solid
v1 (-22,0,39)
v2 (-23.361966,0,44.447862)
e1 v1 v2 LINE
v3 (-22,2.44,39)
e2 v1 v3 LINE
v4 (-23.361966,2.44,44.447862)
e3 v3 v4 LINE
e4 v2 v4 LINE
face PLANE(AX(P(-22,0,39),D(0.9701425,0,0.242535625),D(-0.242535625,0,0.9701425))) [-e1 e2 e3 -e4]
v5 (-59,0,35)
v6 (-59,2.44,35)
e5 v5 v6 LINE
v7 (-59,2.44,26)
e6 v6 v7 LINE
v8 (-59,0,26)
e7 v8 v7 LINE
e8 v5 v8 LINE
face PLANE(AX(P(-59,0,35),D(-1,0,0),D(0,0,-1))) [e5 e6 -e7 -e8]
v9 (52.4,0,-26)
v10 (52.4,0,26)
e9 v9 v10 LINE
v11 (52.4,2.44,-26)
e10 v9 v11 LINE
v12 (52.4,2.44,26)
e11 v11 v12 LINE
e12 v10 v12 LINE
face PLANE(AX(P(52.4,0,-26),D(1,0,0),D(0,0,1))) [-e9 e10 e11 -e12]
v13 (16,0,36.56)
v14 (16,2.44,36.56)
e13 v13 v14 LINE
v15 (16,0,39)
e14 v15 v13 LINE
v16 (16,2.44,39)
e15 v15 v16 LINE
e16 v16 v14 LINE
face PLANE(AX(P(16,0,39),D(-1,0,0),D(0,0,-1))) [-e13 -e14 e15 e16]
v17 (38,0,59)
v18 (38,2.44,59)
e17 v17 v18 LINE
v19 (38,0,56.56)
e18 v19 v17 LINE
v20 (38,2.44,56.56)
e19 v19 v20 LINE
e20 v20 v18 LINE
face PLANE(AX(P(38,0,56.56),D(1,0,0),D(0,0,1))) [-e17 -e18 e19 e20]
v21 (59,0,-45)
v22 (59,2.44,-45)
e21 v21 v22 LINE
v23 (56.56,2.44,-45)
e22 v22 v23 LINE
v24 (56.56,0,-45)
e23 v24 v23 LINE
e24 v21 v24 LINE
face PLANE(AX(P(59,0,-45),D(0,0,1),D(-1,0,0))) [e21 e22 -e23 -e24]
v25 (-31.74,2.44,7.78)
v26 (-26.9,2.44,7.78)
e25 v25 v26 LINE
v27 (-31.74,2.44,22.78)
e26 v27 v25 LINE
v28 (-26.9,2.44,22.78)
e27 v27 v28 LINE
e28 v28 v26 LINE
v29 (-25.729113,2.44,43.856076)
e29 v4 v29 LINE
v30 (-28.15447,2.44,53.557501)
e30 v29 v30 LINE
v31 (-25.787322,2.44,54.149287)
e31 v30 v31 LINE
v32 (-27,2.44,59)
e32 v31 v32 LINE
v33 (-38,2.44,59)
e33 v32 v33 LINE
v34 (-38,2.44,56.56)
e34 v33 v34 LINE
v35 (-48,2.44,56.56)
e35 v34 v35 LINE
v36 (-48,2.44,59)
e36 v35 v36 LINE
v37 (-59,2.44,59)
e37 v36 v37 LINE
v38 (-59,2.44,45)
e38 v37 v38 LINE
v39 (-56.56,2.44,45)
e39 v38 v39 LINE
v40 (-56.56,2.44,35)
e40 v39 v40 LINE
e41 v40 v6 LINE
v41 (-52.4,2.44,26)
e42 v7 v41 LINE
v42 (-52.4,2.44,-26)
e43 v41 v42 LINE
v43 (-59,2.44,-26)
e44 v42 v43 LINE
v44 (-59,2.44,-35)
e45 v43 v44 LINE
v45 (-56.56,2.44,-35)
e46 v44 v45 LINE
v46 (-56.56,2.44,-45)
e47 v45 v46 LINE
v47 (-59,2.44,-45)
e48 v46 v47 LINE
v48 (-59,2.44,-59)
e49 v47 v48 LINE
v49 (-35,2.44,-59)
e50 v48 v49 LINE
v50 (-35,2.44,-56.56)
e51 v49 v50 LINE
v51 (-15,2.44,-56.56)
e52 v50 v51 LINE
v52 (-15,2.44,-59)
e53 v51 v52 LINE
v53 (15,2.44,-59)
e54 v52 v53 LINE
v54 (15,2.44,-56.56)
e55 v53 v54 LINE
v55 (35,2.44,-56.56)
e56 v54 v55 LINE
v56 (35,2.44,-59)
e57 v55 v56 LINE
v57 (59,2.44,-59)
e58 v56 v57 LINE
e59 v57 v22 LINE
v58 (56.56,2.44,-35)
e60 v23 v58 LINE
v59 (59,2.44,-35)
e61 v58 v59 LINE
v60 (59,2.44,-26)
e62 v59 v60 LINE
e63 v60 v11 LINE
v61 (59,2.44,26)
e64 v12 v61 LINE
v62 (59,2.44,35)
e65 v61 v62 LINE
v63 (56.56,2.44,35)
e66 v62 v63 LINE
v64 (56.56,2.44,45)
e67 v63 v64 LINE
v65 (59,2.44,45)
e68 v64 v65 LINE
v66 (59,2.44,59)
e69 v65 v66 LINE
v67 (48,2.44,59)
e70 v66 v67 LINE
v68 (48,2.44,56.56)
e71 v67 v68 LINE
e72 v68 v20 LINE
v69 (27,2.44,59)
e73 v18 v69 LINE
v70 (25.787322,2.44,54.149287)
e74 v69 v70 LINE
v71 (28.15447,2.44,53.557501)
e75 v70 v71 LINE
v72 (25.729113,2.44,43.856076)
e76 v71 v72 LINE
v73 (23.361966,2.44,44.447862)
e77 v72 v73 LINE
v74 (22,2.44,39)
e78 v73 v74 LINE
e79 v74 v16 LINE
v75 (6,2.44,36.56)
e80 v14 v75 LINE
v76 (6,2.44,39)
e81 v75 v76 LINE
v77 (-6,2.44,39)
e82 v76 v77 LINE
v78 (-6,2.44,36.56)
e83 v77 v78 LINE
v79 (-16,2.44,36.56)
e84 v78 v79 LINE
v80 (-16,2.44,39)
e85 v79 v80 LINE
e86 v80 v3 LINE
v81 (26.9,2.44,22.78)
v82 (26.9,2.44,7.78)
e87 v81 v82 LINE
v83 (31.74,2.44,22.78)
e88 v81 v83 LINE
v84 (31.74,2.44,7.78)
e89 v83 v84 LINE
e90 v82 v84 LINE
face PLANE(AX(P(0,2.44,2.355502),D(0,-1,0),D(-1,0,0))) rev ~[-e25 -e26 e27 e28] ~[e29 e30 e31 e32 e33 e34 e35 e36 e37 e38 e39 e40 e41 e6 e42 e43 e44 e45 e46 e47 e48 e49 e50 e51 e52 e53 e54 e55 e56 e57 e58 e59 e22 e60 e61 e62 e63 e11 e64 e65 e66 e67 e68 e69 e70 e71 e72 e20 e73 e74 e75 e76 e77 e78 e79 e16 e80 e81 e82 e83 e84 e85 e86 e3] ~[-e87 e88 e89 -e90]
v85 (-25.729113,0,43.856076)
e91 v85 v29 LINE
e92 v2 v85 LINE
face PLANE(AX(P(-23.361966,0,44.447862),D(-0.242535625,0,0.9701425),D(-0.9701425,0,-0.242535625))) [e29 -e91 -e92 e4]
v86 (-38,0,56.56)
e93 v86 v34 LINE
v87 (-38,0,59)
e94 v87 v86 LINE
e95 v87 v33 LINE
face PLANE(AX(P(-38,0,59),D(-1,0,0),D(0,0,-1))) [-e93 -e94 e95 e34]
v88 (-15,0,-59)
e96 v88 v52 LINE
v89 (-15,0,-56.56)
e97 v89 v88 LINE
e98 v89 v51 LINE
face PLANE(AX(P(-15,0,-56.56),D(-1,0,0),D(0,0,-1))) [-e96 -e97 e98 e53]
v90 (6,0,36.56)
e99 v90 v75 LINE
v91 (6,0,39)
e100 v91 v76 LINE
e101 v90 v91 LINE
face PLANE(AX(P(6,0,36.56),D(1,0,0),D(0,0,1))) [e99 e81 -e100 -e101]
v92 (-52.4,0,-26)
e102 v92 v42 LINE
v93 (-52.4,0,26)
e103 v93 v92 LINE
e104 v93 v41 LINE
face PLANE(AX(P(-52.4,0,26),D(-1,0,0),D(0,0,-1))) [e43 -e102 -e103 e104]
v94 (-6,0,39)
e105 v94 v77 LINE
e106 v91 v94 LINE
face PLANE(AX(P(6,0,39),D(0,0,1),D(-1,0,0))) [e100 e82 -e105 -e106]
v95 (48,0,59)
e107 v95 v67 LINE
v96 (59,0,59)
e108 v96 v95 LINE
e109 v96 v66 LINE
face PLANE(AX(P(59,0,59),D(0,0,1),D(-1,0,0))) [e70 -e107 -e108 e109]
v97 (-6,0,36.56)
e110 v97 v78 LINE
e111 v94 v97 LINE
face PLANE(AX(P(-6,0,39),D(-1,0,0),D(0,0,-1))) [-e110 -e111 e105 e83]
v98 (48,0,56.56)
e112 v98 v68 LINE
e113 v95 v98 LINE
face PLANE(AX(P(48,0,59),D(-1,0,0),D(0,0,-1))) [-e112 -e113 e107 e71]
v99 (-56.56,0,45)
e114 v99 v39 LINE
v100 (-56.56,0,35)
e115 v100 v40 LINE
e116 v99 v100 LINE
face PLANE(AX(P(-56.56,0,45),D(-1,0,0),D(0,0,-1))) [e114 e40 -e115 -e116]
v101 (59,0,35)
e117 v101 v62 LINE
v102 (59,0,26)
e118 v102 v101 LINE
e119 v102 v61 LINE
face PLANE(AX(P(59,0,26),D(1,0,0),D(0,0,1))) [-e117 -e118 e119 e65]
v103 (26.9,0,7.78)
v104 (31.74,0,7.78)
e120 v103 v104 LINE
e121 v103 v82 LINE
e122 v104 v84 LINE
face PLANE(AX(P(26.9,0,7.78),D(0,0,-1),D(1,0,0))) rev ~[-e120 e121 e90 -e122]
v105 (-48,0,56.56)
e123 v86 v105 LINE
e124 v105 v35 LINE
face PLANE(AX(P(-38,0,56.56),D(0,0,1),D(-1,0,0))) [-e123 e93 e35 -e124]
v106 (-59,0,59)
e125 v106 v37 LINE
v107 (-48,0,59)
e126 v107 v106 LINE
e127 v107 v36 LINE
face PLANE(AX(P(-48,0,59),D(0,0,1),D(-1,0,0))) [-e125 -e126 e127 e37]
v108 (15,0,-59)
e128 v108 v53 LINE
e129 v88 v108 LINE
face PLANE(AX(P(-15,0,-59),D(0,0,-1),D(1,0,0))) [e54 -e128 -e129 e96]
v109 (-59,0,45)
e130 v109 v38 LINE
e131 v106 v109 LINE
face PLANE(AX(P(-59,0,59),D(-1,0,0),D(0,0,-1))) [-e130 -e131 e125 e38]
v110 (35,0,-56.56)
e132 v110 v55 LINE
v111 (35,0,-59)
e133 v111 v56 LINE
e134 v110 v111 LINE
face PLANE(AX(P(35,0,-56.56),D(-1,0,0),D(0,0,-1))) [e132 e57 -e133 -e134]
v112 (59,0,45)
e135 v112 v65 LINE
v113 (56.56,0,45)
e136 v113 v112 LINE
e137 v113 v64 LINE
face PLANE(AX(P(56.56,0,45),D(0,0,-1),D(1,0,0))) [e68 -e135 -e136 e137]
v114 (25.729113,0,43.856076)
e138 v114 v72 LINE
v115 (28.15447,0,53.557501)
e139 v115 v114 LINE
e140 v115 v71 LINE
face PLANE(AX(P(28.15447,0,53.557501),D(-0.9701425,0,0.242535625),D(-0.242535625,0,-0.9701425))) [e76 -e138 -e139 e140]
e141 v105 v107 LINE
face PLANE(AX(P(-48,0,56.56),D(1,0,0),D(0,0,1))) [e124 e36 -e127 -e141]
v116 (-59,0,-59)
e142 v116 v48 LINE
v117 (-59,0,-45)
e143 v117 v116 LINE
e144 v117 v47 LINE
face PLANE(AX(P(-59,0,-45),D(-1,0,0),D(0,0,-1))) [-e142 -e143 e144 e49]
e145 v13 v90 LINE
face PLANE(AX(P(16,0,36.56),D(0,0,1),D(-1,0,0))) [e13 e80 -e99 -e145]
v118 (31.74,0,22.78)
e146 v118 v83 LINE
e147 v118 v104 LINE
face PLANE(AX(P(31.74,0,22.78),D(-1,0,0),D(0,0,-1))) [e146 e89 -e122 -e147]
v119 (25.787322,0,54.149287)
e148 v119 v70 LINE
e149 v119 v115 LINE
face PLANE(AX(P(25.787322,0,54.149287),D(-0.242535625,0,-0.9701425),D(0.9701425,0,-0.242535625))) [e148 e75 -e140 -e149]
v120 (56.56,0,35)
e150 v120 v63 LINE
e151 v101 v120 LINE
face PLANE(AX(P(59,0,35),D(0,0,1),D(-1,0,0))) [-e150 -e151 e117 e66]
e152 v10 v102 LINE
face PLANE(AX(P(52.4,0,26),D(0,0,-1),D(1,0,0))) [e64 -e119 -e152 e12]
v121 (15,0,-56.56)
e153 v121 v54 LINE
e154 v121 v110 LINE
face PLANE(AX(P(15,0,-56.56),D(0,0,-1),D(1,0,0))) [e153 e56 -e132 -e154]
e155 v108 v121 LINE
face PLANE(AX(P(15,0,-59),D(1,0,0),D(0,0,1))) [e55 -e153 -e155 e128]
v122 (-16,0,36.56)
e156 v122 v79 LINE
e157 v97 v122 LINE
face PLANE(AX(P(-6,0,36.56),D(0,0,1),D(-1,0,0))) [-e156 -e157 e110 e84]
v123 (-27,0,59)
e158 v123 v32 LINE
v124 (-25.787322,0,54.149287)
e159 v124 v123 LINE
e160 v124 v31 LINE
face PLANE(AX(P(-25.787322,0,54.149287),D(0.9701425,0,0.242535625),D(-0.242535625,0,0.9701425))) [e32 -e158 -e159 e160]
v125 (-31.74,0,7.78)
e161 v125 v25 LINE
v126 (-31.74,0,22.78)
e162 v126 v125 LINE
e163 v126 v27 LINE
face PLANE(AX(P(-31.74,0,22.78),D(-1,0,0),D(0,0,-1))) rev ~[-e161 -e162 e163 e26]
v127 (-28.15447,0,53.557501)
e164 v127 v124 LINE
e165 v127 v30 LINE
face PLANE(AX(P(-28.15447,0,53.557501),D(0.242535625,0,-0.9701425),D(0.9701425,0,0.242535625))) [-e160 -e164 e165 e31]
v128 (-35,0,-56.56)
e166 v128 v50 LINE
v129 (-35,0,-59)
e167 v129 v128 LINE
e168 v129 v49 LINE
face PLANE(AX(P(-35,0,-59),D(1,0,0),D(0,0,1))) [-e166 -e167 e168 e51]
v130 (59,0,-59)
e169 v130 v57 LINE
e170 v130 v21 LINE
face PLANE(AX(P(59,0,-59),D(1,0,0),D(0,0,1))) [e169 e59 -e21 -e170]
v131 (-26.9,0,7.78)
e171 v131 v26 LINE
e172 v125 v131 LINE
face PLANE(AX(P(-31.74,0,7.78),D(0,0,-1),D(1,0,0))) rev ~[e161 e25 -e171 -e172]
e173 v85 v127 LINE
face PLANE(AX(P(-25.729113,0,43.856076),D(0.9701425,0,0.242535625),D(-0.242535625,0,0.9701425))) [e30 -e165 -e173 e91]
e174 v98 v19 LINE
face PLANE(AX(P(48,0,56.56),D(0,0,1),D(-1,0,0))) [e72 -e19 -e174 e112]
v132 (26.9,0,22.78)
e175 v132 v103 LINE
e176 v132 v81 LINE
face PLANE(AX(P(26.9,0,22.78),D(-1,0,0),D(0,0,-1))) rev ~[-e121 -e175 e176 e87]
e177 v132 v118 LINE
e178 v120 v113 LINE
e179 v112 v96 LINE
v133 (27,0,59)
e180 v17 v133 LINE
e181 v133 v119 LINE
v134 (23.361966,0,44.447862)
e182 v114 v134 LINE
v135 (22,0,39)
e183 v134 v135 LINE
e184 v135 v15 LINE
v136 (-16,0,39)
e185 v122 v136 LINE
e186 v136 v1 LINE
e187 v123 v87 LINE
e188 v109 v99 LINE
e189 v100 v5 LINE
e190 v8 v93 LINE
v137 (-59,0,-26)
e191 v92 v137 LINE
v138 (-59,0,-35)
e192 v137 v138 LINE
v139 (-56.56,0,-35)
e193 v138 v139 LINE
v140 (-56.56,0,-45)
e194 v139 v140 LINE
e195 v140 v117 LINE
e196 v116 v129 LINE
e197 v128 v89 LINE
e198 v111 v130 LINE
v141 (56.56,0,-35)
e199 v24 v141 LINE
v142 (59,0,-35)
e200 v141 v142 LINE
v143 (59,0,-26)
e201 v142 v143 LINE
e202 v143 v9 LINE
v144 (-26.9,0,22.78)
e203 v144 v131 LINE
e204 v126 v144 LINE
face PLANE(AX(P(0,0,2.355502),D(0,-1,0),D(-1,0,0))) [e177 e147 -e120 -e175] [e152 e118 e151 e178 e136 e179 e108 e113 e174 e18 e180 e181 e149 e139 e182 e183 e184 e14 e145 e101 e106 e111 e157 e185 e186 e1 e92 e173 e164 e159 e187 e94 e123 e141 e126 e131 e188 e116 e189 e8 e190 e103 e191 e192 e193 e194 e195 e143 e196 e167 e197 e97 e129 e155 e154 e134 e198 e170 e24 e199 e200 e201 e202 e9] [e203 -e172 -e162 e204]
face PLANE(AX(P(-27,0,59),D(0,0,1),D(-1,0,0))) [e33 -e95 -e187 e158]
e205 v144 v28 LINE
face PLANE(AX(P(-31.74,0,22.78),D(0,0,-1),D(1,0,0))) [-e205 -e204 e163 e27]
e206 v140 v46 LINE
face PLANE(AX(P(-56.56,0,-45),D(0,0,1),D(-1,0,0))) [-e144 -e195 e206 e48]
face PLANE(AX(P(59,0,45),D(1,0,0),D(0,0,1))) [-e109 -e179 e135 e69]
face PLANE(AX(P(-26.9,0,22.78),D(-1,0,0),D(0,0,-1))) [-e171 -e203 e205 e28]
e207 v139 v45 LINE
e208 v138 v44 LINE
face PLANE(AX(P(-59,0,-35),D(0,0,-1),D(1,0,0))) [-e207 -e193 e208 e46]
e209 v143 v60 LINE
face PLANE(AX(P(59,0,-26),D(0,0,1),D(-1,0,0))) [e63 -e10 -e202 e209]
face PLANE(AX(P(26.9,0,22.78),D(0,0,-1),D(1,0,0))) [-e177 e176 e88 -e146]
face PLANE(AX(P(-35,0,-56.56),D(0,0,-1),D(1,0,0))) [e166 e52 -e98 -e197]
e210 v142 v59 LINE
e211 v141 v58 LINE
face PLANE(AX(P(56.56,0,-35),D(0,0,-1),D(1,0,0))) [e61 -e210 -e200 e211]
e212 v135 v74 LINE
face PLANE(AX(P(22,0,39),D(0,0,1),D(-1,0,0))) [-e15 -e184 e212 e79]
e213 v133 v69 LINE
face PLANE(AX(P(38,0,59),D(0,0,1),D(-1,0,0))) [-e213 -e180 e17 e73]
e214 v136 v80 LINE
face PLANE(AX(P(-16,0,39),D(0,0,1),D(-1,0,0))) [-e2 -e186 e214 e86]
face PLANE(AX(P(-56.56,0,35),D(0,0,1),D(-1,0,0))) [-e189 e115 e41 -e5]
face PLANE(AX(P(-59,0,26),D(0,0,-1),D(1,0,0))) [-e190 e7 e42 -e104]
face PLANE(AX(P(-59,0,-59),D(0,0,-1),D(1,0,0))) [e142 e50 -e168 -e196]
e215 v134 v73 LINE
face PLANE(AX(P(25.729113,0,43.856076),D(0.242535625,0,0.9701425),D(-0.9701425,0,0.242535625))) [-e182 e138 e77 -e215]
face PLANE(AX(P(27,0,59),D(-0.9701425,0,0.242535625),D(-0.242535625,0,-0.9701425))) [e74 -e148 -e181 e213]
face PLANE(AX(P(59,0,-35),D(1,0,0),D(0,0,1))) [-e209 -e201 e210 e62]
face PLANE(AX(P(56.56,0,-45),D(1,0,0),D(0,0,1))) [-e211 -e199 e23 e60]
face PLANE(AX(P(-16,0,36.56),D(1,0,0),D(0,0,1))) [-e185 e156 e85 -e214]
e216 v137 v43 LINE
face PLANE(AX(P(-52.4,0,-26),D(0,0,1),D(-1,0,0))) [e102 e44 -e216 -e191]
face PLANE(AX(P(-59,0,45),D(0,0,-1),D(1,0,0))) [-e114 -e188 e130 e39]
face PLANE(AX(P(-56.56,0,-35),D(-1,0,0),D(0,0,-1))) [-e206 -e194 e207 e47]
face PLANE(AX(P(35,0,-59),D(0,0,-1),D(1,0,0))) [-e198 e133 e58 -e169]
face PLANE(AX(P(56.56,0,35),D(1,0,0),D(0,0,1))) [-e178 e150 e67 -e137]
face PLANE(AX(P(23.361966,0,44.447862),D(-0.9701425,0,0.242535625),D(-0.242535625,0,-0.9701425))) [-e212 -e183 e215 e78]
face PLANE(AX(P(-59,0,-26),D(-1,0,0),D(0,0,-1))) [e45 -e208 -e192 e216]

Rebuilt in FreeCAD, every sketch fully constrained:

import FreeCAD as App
import Part
import Sketcher
from FreeCAD import Vector
Q = App.Units.Quantity


def add_polygon(sketch, points):
    """Adds a closed chain of lines whose ends are joined by coincident constraints."""
    first, n = sketch.GeometryCount, len(points)
    for a, b in zip(points, points[1:] + points[:1]):
        sketch.addGeometry(Part.LineSegment(App.Vector(*a, 0), App.Vector(*b, 0)), False)
    for i in range(n):
        sketch.addConstraint(Sketcher.Constraint("Coincident", first + i, 2, first + (i + 1) % n, 1))

doc = App.newDocument("Part")
body = doc.addObject("PartDesign::Body", "Body")

# Sketch on XZ plane
sketch1 = body.newObject("Sketcher::SketchObject", "Sketch")
sketch1.AttachmentSupport = (doc.getObject("XZ_Plane"), [""])
sketch1.MapMode = "FlatFace"
add_polygon(sketch1, [(-59, -59), (-59, -45), (-56.6, -45), (-56.6, -35), (-59, -35), (-59, -26), (-52.4, -26), (-52.4, 26), (-59, 26), (-59, 35), (-56.6, 35), (-56.6, 45), (-59, 45), (-59, 59), (-48, 59), (-48, 56.6), (-38, 56.6), (-38, 59), (-27, 59), (-25.8, 54.1), (-28.2, 53.6), (-25.7, 43.9), (-23.4, 44.4), (-22, 39), (-16, 39), (-16, 36.6), (-6, 36.6), (-6, 39), (6, 39), (6, 36.6), (16, 36.6), (16, 39), (22, 39), (23.4, 44.4), (25.7, 43.9), (28.2, 53.6), (25.8, 54.1), (27, 59), (38, 59), (38, 56.6), (48, 56.6), (48, 59), (59, 59), (59, 45), (56.6, 45), (56.6, 35), (59, 35), (59, 26), (52.4, 26), (52.4, -26), (59, -26), (59, -35), (56.6, -35), (56.6, -45), (59, -45), (59, -59), (35, -59), (35, -56.6), (15, -56.6), (15, -59), (-15, -59), (-15, -56.6), (-35, -56.6), (-35, -59)])  # lines 0-63
add_polygon(sketch1, [(26.9, 22.8), (26.9, 7.8), (31.7, 7.8), (31.7, 22.8)])  # lines 64-67
add_polygon(sketch1, [(-31.7, 22.8), (-31.7, 7.8), (-26.9, 7.8), (-26.9, 22.8)])  # lines 68-71
sketch1.addConstraint(Sketcher.Constraint("Vertical", 0))
sketch1.addConstraint(Sketcher.Constraint("Horizontal", 1))
sketch1.addConstraint(Sketcher.Constraint("Vertical", 2))
sketch1.addConstraint(Sketcher.Constraint("Horizontal", 3))
sketch1.addConstraint(Sketcher.Constraint("Vertical", 4))
sketch1.addConstraint(Sketcher.Constraint("Horizontal", 5))
sketch1.addConstraint(Sketcher.Constraint("Vertical", 6))
sketch1.addConstraint(Sketcher.Constraint("Horizontal", 7))
sketch1.addConstraint(Sketcher.Constraint("Vertical", 8))
sketch1.addConstraint(Sketcher.Constraint("Horizontal", 9))
sketch1.addConstraint(Sketcher.Constraint("Vertical", 10))
sketch1.addConstraint(Sketcher.Constraint("Horizontal", 11))
sketch1.addConstraint(Sketcher.Constraint("Vertical", 12))
sketch1.addConstraint(Sketcher.Constraint("Horizontal", 13))
sketch1.addConstraint(Sketcher.Constraint("Vertical", 14))
sketch1.addConstraint(Sketcher.Constraint("Horizontal", 15))
sketch1.addConstraint(Sketcher.Constraint("Vertical", 16))
sketch1.addConstraint(Sketcher.Constraint("Horizontal", 17))
sketch1.addConstraint(Sketcher.Constraint("Horizontal", 23))
sketch1.addConstraint(Sketcher.Constraint("Vertical", 24))
sketch1.addConstraint(Sketcher.Constraint("Horizontal", 25))
sketch1.addConstraint(Sketcher.Constraint("Vertical", 26))
sketch1.addConstraint(Sketcher.Constraint("Horizontal", 27))
sketch1.addConstraint(Sketcher.Constraint("Vertical", 28))
sketch1.addConstraint(Sketcher.Constraint("Horizontal", 29))
sketch1.addConstraint(Sketcher.Constraint("Vertical", 30))
sketch1.addConstraint(Sketcher.Constraint("Horizontal", 31))
sketch1.addConstraint(Sketcher.Constraint("Horizontal", 37))
sketch1.addConstraint(Sketcher.Constraint("Vertical", 38))
sketch1.addConstraint(Sketcher.Constraint("Horizontal", 39))
sketch1.addConstraint(Sketcher.Constraint("Vertical", 40))
sketch1.addConstraint(Sketcher.Constraint("Horizontal", 41))
sketch1.addConstraint(Sketcher.Constraint("Vertical", 42))
sketch1.addConstraint(Sketcher.Constraint("Horizontal", 43))
sketch1.addConstraint(Sketcher.Constraint("Vertical", 44))
sketch1.addConstraint(Sketcher.Constraint("Horizontal", 45))
sketch1.addConstraint(Sketcher.Constraint("Vertical", 46))
sketch1.addConstraint(Sketcher.Constraint("Horizontal", 47))
sketch1.addConstraint(Sketcher.Constraint("Vertical", 48))
sketch1.addConstraint(Sketcher.Constraint("Horizontal", 49))
sketch1.addConstraint(Sketcher.Constraint("Vertical", 50))
sketch1.addConstraint(Sketcher.Constraint("Horizontal", 51))
sketch1.addConstraint(Sketcher.Constraint("Vertical", 52))
sketch1.addConstraint(Sketcher.Constraint("Horizontal", 53))
sketch1.addConstraint(Sketcher.Constraint("Vertical", 54))
sketch1.addConstraint(Sketcher.Constraint("Horizontal", 55))
sketch1.addConstraint(Sketcher.Constraint("Vertical", 56))
sketch1.addConstraint(Sketcher.Constraint("Horizontal", 57))
sketch1.addConstraint(Sketcher.Constraint("Vertical", 58))
sketch1.addConstraint(Sketcher.Constraint("Horizontal", 59))
sketch1.addConstraint(Sketcher.Constraint("Vertical", 60))
sketch1.addConstraint(Sketcher.Constraint("Horizontal", 61))
sketch1.addConstraint(Sketcher.Constraint("Vertical", 62))
sketch1.addConstraint(Sketcher.Constraint("Horizontal", 63))
sketch1.addConstraint(Sketcher.Constraint("Vertical", 64))
sketch1.addConstraint(Sketcher.Constraint("Horizontal", 65))
sketch1.addConstraint(Sketcher.Constraint("Vertical", 66))
sketch1.addConstraint(Sketcher.Constraint("Horizontal", 67))
sketch1.addConstraint(Sketcher.Constraint("Vertical", 68))
sketch1.addConstraint(Sketcher.Constraint("Horizontal", 69))
sketch1.addConstraint(Sketcher.Constraint("Vertical", 70))
sketch1.addConstraint(Sketcher.Constraint("Horizontal", 71))
sketch1.addConstraint(Sketcher.Constraint("Symmetric", 0, 2, 42, 2, -1, 1))
sketch1.addConstraint(Sketcher.Constraint("Symmetric", 2, 2, 44, 2, -1, 1))
sketch1.addConstraint(Sketcher.Constraint("Symmetric", 4, 2, 46, 2, -1, 1))
sketch1.addConstraint(Sketcher.Constraint("Symmetric", 6, 2, 48, 2, -1, 1))
sketch1.addConstraint(Sketcher.Constraint("Symmetric", 8, 2, 50, 2, -1, 1))
sketch1.addConstraint(Sketcher.Constraint("Symmetric", 10, 2, 52, 2, -1, 1))
sketch1.addConstraint(Sketcher.Constraint("Symmetric", 12, 2, 54, 2, -1, 1))
sketch1.addConstraint(Sketcher.Constraint("Symmetric", 25, 2, 28, 2, -2))
sketch1.addConstraint(Sketcher.Constraint("Symmetric", 23, 2, 30, 2, -2))
sketch1.addConstraint(Sketcher.Constraint("Symmetric", 21, 2, 32, 2, -2))
sketch1.addConstraint(Sketcher.Constraint("Symmetric", 20, 2, 33, 2, -2))
sketch1.addConstraint(Sketcher.Constraint("Symmetric", 19, 2, 34, 2, -2))
sketch1.addConstraint(Sketcher.Constraint("Symmetric", 18, 2, 35, 2, -2))
sketch1.addConstraint(Sketcher.Constraint("Symmetric", 17, 2, 36, 2, -2))
sketch1.addConstraint(Sketcher.Constraint("Symmetric", 15, 2, 38, 2, -2))
sketch1.addConstraint(Sketcher.Constraint("Symmetric", 13, 2, 40, 2, -2))
sketch1.addConstraint(Sketcher.Constraint("Symmetric", 11, 2, 42, 2, -2))
sketch1.addConstraint(Sketcher.Constraint("Symmetric", 9, 2, 44, 2, -2))
sketch1.addConstraint(Sketcher.Constraint("Symmetric", 7, 2, 46, 2, -2))
sketch1.addConstraint(Sketcher.Constraint("Symmetric", 57, 2, 60, 2, -2))
sketch1.addConstraint(Sketcher.Constraint("Symmetric", 55, 2, 62, 2, -2))
sketch1.addConstraint(Sketcher.Constraint("Symmetric", 65, 2, 68, 2, -2))
sketch1.addConstraint(Sketcher.Constraint("Symmetric", 67, 2, 70, 2, -2))
sketch1.addConstraint(Sketcher.Constraint("Perpendicular", 18, 19))
sketch1.addConstraint(Sketcher.Constraint("Perpendicular", 19, 20))
sketch1.addConstraint(Sketcher.Constraint("Perpendicular", 20, 21))
sketch1.addConstraint(Sketcher.Constraint("Perpendicular", 21, 22))
sketch1.addConstraint(Sketcher.Constraint("Perpendicular", 32, 33))
sketch1.addConstraint(Sketcher.Constraint("Horizontal", 13, 2, 16, 2))
sketch1.addConstraint(Sketcher.Constraint("Horizontal", 23, 2, 26, 2))
sketch1.addConstraint(Sketcher.Constraint("Horizontal", 55, 2, 58, 2))
sketch1.addConstraint(Sketcher.Constraint("Vertical", 0, 2, 3, 2))
sketch1.addConstraint(Sketcher.Constraint("Equal", 13, 17))
sketch1.addConstraint(Sketcher.Constraint("Equal", 15, 25))
sketch1.addConstraint(Sketcher.Constraint("Equal", 39, 2))
sketch1.addConstraint(Sketcher.Constraint("Equal", 53, 14))
sketch1.addConstraint(Sketcher.Constraint("Equal", 16, 24))
sketch1.addConstraint(Sketcher.Constraint("Equal", 40, 56))
sketch1.addConstraint(Sketcher.Constraint("Equal", 19, 21))
sketch1.addConstraint(Sketcher.Constraint("DistanceX", 13, 1, 13, 2, Q("11 mm")))
sketch1.addConstraint(Sketcher.Constraint("DistanceX", 15, 1, 15, 2, Q("10 mm")))
sketch1.addConstraint(Sketcher.Constraint("DistanceX", 23, 1, 23, 2, Q("6 mm")))
sketch1.addConstraint(Sketcher.Constraint("DistanceX", 27, 1, 27, 2, Q("12 mm")))
sketch1.addConstraint(Sketcher.Constraint("DistanceX", 55, 2, 55, 1, Q("24 mm")))
sketch1.addConstraint(Sketcher.Constraint("DistanceX", 57, 2, 57, 1, Q("20 mm")))
sketch1.addConstraint(Sketcher.Constraint("DistanceX", 59, 2, 59, 1, Q("30 mm")))
sketch1.addConstraint(Sketcher.Constraint("DistanceY", 0, 1, 0, 2, Q("14 mm")))
sketch1.addConstraint(Sketcher.Constraint("DistanceY", 4, 1, 4, 2, Q("9 mm")))
sketch1.addConstraint(Sketcher.Constraint("DistanceY", 6, 1, 6, 2, Q("52 mm")))
sketch1.addConstraint(Sketcher.Constraint("DistanceY", 64, 2, 64, 1, Q("15 mm")))
sketch1.addConstraint(Sketcher.Constraint("Distance", 18, Q("5 mm")))
sketch1.addConstraint(Sketcher.Constraint("Distance", 20, Q("10 mm")))
sketch1.addConstraint(Sketcher.Constraint("DistanceX", 5, 1, 5, 2, Q("6.6 mm")))
sketch1.addConstraint(Sketcher.Constraint("DistanceY", -1, 1, 22, 2, Q("39 mm")))
sketch1.addConstraint(Sketcher.Constraint("DistanceX", 1, 1, 1, 2, Q("2.44 mm")))
sketch1.addConstraint(Sketcher.Constraint("DistanceX", 65, 1, 65, 2, Q("4.84 mm")))
sketch1.addConstraint(Sketcher.Constraint("DistanceX", -1, 1, 64, 2, Q("26.9 mm")))
sketch1.addConstraint(Sketcher.Constraint("Distance", 19, Q("2.44 mm")))
sketch1.addConstraint(Sketcher.Constraint("DistanceY", -1, 1, 64, 2, Q("7.78 mm")))
pad1 = body.newObject("PartDesign::Pad", "Pad")
pad1.Profile = sketch1
pad1.Length = 2.44
pad1.Reversed = True

doc.recompute()
